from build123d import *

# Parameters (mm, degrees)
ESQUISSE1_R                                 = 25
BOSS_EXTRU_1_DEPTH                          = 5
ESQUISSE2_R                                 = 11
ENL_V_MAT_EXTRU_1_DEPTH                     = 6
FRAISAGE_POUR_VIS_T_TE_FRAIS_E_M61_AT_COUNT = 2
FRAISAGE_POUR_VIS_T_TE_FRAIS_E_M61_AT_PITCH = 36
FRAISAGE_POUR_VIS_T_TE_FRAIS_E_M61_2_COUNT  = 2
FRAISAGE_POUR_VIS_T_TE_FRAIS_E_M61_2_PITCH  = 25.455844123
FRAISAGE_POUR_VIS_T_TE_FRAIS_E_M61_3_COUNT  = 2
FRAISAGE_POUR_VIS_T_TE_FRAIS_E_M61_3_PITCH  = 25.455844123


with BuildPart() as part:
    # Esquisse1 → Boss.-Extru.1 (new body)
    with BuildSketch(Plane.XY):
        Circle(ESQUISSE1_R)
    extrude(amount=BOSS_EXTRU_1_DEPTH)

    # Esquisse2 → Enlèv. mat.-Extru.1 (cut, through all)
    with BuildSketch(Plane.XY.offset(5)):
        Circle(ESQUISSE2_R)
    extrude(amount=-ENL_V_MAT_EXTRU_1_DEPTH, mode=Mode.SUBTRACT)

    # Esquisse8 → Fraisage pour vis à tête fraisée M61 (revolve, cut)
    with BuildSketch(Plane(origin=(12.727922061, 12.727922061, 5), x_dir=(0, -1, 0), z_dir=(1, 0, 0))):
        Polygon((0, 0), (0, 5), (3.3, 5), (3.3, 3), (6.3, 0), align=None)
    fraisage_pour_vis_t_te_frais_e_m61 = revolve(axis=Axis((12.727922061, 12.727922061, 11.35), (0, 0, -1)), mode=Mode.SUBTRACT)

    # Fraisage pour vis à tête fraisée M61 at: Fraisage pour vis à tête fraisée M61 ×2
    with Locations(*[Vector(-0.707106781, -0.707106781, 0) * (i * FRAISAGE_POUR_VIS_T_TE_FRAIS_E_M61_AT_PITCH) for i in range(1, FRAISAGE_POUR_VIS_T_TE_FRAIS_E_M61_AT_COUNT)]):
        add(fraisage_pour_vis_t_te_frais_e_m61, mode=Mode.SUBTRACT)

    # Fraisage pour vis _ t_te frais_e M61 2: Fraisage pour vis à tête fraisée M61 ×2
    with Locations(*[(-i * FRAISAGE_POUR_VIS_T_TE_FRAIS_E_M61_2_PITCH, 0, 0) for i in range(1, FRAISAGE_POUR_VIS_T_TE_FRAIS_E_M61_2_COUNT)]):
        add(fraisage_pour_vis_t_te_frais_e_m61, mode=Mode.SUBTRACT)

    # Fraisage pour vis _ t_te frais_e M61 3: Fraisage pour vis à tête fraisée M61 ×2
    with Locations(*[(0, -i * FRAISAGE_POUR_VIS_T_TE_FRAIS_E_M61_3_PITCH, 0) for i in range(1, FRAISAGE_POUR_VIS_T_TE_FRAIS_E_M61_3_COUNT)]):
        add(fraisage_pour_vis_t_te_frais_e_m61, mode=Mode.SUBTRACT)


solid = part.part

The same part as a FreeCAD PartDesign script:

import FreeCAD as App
import Part
import Sketcher
Q = App.Units.Quantity

doc = App.newDocument("Part")
body = doc.addObject("PartDesign::Body", "Body")

sketch1 = doc.addObject("Sketcher::SketchObject", "Sketch")
body.addObject(sketch1)
sketch1.AttachmentSupport = (doc.XY_Plane, [""])
sketch1.MapMode = "FlatFace"
sketch1.addGeometry(Part.Circle(App.Vector(0, 0, 0), App.Vector(0, 0, 1), 25), False)
sketch1.addConstraint([
    Sketcher.Constraint("Coincident", 0, 3, -1, 1),
    Sketcher.Constraint("Diameter", 0, 50.0),
])
pad1 = doc.addObject("PartDesign::Pad", "Pad")
body.addObject(pad1)
pad1.Profile = sketch1
pad1.Length = 5

sketch2 = doc.addObject("Sketcher::SketchObject", "Sketch001")
body.addObject(sketch2)
sketch2.AttachmentSupport = (doc.XY_Plane, [""])
sketch2.MapMode = "FlatFace"
sketch2.AttachmentOffset = App.Placement(App.Vector(0, 0, 5), App.Rotation())
sketch2.addGeometry(Part.Circle(App.Vector(0, 0, 0), App.Vector(0, 0, 1), 11), False)
sketch2.addConstraint([
    Sketcher.Constraint("Coincident", 0, 3, -1, 1),
    Sketcher.Constraint("Diameter", 0, 22.0),
])
pocket1 = doc.addObject("PartDesign::Pocket", "Pocket")
body.addObject(pocket1)
pocket1.Profile = sketch2
pocket1.Type = "ThroughAll"

sketch3 = doc.addObject("Sketcher::SketchObject", "Sketch002")
body.addObject(sketch3)
sketch3.AttachmentSupport = (doc.YZ_Plane, [""])
sketch3.MapMode = "FlatFace"
sketch3.AttachmentOffset = App.Placement(App.Vector(0, 0, 12.727922), App.Rotation())
sketch3.addGeometry([
    Part.LineSegment(App.Vector(12.7, 0, 0), App.Vector(12.7, 5, 0)),
    Part.LineSegment(App.Vector(12.7, 5, 0), App.Vector(6.4, 5, 0)),
    Part.LineSegment(App.Vector(6.4, 5, 0), App.Vector(9.4, 2, 0)),
    Part.LineSegment(App.Vector(9.4, 2, 0), App.Vector(9.4, 0, 0)),
    Part.LineSegment(App.Vector(9.4, 0, 0), App.Vector(12.7, 0, 0)),
], False)
sketch3.addGeometry(Part.LineSegment(App.Vector(12.7, 5, 0), App.Vector(12.7, 0, 0)), True)
sketch3.addConstraint([
    Sketcher.Constraint("Coincident", 0, 2, 1, 1),
    Sketcher.Constraint("Coincident", 1, 2, 2, 1),
    Sketcher.Constraint("Coincident", 2, 2, 3, 1),
    Sketcher.Constraint("Coincident", 3, 2, 4, 1),
    Sketcher.Constraint("Coincident", 4, 2, 0, 1),
    Sketcher.Constraint("Vertical", 0),
    Sketcher.Constraint("Horizontal", 1),
    Sketcher.Constraint("Vertical", 3),
    Sketcher.Constraint("Horizontal", 4),
    Sketcher.Constraint("Vertical", 5),
    Sketcher.Constraint("Coincident", 5, 1, 0, 2),
    Sketcher.Constraint("PointOnObject", 3, 2, -1),
    Sketcher.Constraint("PointOnObject", 5, 2, -1),
    Sketcher.Constraint("DistanceY", 0, 1, 0, 2, 5.0),
    Sketcher.Constraint("DistanceY", 3, 2, 3, 1, 2.0),
    Sketcher.Constraint("Angle", 2, Q("-45 deg")),
    Sketcher.Constraint("DistanceX", 1, 2, 1, 1, 6.3),
    Sketcher.Constraint("DistanceX", -1, 1, 0, 2, 12.727922),
])
groove = doc.addObject("PartDesign::Groove", "Groove")
body.addObject(groove)
groove.Profile = sketch3
groove.ReferenceAxis = (sketch3, ["Axis0"])
groove.Angle = 360
doc.recompute()

datumline = doc.addObject("PartDesign::Line", "DatumLine")
body.addObject(datumline)
datumline.Placement = App.Placement(App.Vector(0, 0, 0), App.Rotation(App.Vector(0, 0, 1), App.Vector(-0.707106781, -0.707106781, 0)))
linearpattern = doc.addObject("PartDesign::LinearPattern", "LinearPattern")
body.addObject(linearpattern)
linearpattern.Originals = [groove]
linearpattern.Direction = (datumline, [""])
linearpattern.Mode = "offset"
linearpattern.Offset = 36
linearpattern.Occurrences = 2
body.Tip = linearpattern
doc.recompute()

linearpattern2 = doc.addObject("PartDesign::LinearPattern", "LinearPattern001")
body.addObject(linearpattern2)
linearpattern2.Originals = [groove]
linearpattern2.Direction = (doc.X_Axis, [""])
linearpattern2.Mode = "offset"
linearpattern2.Offset = 25.455844
linearpattern2.Occurrences = 2
linearpattern2.Reversed = True
body.Tip = linearpattern2
doc.recompute()

linearpattern3 = doc.addObject("PartDesign::LinearPattern", "LinearPattern002")
body.addObject(linearpattern3)
linearpattern3.Originals = [groove]
linearpattern3.Direction = (doc.Y_Axis, [""])
linearpattern3.Mode = "offset"
linearpattern3.Offset = 25.455844
linearpattern3.Occurrences = 2
linearpattern3.Reversed = True
body.Tip = linearpattern3

doc.recompute()
